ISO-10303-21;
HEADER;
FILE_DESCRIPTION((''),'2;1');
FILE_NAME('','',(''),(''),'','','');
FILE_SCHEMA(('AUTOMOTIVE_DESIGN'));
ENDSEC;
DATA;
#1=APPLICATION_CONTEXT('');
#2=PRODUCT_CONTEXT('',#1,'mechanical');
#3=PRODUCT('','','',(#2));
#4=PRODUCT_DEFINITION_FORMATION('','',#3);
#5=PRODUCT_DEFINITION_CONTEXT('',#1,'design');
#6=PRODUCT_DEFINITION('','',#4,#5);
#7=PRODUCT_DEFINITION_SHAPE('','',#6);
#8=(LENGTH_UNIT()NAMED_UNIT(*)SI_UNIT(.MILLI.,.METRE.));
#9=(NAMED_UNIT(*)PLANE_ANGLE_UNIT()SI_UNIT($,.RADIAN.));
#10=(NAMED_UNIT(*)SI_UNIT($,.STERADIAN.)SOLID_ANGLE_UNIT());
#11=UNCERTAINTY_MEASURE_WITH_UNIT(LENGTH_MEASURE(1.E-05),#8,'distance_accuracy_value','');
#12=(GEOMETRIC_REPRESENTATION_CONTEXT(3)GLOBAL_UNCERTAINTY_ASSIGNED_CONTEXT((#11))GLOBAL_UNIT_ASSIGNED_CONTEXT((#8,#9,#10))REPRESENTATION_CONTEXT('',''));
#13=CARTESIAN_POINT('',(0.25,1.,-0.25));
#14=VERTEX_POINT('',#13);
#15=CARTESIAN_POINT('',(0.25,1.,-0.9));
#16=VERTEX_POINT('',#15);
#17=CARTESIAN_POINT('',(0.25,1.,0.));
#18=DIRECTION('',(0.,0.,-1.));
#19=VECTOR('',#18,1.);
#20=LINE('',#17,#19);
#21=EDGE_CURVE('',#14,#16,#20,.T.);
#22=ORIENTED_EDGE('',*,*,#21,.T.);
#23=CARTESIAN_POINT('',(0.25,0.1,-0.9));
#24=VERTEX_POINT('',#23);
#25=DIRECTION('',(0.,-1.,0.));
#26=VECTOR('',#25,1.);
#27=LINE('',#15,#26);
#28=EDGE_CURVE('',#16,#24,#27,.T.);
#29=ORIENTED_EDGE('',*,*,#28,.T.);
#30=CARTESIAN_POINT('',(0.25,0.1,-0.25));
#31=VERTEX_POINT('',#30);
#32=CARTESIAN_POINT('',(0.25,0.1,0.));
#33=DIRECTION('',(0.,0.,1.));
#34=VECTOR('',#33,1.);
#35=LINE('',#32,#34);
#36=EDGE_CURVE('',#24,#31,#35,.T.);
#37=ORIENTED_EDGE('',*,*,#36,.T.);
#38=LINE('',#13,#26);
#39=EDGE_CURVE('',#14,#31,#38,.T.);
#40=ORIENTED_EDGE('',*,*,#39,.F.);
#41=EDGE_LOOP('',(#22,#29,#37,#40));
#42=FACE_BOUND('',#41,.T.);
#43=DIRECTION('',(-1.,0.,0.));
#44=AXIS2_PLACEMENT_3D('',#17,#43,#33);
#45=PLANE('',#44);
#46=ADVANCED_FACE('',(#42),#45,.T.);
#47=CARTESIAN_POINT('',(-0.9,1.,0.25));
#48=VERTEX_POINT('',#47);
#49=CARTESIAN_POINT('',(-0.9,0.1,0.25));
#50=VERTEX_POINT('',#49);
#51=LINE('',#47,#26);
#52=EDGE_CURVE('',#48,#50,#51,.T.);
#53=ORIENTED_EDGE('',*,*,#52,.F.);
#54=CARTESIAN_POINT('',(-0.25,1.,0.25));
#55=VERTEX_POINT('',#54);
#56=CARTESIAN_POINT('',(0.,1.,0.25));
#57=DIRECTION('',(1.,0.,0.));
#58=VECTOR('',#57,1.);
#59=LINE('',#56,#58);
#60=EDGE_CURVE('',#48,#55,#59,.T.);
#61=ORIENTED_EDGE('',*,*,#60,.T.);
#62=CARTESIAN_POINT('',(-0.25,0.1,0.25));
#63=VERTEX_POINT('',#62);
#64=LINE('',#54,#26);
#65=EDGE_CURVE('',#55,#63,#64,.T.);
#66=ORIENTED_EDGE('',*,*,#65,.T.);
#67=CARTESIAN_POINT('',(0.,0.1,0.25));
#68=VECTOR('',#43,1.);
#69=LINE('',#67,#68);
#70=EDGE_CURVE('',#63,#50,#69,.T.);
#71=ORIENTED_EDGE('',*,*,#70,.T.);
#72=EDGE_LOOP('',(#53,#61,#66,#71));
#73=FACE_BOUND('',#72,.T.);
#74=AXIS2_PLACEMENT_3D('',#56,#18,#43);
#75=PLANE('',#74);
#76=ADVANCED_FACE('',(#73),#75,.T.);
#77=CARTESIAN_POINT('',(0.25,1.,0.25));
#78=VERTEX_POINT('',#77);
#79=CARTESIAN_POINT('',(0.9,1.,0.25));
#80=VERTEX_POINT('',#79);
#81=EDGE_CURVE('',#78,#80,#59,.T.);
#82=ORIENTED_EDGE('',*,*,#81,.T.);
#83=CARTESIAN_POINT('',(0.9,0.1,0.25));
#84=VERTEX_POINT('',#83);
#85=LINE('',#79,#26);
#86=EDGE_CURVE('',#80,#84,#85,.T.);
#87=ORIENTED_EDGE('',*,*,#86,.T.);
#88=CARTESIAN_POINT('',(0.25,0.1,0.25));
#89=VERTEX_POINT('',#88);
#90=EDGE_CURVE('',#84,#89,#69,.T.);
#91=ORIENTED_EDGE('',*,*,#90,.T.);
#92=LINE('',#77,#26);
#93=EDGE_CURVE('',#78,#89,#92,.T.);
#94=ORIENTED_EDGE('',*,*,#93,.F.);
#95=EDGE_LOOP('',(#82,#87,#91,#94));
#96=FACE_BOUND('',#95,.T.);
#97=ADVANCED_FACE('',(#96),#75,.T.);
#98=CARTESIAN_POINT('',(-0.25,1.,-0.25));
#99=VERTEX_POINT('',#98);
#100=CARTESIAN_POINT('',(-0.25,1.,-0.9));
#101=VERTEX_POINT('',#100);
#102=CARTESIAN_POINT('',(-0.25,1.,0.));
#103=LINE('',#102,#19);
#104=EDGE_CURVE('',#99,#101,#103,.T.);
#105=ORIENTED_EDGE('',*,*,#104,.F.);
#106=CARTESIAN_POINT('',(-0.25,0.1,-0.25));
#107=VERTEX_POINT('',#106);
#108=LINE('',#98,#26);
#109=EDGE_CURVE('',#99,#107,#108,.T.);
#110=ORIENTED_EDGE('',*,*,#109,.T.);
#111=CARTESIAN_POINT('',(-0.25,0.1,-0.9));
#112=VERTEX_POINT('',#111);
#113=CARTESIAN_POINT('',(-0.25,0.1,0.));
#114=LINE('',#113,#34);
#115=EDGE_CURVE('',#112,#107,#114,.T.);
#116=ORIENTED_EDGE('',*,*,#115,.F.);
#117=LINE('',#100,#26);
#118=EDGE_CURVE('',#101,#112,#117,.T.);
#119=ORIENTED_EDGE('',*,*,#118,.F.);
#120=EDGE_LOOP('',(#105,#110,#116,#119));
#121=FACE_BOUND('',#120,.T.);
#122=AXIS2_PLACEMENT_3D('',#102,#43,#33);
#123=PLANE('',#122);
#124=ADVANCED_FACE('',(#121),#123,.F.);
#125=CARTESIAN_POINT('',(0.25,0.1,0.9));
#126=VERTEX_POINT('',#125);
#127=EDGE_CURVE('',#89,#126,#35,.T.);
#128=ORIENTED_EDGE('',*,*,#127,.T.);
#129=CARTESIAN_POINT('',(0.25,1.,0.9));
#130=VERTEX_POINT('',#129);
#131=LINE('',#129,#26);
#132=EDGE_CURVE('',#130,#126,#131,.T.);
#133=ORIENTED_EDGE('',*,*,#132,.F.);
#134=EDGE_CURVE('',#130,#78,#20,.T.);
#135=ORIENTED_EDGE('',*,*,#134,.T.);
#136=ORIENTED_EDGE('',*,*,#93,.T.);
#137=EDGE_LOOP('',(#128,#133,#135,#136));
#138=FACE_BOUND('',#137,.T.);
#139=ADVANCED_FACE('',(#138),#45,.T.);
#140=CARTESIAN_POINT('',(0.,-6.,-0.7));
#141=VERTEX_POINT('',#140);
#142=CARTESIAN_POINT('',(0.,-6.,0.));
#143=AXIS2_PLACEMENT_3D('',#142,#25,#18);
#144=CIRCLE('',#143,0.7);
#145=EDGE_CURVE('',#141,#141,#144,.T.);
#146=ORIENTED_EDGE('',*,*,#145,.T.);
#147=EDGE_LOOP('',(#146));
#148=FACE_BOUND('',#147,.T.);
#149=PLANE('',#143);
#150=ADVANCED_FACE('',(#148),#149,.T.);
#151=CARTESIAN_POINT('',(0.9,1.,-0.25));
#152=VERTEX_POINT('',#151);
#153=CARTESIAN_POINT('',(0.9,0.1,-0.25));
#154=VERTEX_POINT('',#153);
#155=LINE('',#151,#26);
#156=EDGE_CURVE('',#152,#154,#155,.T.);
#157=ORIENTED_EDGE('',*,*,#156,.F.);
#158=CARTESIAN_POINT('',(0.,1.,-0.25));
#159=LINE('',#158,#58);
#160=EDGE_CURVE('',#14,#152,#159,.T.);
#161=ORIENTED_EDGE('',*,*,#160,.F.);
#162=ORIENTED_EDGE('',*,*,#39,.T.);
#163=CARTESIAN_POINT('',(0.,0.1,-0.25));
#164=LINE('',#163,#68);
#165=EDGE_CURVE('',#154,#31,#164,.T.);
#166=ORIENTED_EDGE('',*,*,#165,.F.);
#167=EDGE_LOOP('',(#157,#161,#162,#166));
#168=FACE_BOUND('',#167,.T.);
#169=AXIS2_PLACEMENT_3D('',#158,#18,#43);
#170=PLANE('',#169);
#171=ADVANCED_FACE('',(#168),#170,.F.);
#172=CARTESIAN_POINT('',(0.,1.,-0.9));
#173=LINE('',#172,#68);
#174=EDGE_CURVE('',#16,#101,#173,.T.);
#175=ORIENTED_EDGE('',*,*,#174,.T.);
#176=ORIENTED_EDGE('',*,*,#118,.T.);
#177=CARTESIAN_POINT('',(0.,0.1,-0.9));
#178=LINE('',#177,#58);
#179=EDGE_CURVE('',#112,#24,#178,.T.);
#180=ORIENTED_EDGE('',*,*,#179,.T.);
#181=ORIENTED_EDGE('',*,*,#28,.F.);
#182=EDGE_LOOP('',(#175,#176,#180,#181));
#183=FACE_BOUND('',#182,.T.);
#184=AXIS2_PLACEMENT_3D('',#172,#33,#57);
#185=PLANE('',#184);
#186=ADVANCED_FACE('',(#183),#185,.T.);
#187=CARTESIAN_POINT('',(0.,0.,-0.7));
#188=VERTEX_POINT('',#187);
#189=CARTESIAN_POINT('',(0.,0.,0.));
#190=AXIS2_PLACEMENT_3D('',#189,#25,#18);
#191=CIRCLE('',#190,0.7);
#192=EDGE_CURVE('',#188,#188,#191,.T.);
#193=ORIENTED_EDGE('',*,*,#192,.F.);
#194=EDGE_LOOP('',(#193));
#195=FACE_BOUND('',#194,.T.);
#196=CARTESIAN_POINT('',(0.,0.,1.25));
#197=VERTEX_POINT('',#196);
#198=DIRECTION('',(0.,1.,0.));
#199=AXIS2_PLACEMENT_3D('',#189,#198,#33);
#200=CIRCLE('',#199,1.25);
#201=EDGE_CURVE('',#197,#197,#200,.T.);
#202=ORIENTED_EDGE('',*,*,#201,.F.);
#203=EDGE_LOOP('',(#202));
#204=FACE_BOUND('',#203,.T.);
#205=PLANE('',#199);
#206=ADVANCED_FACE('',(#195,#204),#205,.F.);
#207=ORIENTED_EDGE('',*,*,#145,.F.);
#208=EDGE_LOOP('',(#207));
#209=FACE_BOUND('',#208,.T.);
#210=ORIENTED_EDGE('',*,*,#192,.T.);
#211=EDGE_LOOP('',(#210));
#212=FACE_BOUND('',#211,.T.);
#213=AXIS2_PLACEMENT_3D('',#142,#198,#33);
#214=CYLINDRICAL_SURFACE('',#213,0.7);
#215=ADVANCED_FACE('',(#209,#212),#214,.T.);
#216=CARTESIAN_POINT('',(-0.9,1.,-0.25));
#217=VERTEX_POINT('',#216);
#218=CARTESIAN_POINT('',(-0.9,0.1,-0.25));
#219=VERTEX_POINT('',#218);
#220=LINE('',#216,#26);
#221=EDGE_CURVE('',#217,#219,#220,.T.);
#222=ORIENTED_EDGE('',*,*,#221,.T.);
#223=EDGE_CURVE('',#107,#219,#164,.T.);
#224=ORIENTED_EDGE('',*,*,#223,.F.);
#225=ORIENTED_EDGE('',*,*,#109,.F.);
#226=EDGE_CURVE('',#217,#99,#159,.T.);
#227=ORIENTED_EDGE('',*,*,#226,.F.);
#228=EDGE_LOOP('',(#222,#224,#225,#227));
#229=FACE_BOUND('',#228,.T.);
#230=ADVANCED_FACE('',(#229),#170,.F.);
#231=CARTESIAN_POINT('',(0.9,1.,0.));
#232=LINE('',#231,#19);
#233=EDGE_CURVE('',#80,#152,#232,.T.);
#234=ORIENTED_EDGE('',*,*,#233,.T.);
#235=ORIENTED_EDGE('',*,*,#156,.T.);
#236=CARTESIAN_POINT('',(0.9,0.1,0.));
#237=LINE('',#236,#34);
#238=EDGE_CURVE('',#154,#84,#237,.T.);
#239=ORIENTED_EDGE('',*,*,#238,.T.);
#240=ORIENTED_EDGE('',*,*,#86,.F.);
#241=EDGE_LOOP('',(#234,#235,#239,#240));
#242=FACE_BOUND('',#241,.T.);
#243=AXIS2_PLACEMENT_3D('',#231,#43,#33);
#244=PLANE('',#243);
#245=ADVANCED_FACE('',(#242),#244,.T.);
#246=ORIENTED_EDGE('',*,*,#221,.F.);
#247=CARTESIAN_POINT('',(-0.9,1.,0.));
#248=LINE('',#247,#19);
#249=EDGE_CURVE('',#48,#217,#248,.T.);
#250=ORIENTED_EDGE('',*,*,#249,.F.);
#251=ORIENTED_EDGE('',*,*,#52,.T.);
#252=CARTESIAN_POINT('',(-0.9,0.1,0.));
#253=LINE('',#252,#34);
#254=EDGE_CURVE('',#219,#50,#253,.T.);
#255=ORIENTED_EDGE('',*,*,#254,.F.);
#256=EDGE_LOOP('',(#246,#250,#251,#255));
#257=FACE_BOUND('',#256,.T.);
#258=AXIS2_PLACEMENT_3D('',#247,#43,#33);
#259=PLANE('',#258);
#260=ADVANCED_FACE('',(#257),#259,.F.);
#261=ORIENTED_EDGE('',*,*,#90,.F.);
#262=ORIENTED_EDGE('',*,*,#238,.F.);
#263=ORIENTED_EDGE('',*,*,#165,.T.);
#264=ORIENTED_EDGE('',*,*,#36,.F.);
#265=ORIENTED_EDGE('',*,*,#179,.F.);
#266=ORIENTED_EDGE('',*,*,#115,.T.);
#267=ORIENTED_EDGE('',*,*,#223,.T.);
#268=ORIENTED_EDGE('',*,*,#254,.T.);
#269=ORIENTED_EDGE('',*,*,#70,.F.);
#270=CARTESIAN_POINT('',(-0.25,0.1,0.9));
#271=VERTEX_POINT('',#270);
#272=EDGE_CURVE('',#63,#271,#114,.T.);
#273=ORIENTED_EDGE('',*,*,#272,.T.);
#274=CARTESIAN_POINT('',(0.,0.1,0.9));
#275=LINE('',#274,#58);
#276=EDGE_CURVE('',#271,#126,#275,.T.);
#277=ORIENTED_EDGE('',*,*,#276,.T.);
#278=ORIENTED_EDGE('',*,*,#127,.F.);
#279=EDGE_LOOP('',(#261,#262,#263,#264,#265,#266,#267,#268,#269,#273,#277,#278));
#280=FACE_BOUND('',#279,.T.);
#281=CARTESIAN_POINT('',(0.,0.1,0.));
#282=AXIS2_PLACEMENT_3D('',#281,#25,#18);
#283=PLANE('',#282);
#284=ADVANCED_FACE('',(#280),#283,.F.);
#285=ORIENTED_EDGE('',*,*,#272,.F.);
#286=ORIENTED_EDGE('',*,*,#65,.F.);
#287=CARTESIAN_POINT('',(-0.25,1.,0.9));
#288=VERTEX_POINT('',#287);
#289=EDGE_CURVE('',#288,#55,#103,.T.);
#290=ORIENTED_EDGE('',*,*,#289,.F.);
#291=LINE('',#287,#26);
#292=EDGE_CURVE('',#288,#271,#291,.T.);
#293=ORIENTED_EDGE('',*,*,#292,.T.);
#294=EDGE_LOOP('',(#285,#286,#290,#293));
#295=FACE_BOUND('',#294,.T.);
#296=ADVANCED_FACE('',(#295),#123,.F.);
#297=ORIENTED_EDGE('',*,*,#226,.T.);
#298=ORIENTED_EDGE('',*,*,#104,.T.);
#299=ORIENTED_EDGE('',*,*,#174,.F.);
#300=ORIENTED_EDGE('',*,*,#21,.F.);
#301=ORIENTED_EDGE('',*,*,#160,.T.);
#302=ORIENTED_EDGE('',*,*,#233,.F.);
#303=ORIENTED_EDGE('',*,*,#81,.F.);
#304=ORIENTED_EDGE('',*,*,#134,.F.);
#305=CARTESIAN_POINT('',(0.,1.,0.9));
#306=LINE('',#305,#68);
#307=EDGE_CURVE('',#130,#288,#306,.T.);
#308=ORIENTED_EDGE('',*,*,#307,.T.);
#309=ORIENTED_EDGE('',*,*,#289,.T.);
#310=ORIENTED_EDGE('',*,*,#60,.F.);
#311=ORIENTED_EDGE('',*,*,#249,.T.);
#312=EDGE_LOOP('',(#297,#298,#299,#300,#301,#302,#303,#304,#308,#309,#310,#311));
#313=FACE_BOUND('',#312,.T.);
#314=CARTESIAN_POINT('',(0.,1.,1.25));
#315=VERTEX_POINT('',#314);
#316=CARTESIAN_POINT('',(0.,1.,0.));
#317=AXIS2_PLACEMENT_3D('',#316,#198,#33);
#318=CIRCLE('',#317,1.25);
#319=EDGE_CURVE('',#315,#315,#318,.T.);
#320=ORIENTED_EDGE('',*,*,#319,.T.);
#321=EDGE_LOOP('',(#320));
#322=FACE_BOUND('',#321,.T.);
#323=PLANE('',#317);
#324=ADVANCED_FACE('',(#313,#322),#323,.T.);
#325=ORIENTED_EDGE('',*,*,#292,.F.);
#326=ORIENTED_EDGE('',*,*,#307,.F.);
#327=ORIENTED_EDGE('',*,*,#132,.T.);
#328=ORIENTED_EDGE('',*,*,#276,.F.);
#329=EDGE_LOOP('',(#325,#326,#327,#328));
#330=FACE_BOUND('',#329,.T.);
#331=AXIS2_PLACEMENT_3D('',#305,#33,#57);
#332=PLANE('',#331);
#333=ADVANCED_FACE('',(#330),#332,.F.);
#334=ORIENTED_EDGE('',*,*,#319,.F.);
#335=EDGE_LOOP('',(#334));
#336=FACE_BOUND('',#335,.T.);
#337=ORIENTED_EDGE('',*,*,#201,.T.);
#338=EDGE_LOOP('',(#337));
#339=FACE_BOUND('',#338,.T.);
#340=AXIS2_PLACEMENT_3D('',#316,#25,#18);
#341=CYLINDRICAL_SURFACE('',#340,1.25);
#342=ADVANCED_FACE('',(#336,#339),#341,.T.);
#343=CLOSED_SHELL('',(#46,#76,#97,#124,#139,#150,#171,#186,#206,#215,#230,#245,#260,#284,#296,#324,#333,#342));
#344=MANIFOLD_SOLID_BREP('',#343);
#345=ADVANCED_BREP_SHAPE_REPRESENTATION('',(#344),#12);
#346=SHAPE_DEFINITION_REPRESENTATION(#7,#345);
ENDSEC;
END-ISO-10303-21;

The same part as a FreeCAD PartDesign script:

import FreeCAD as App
import Part
import Sketcher

V = App.Vector
Q = App.Units.Quantity

doc = App.newDocument("Part")
body = doc.addObject("PartDesign::Body", "Body")

# Sketch on XZ plane
sketch1 = body.newObject("Sketcher::SketchObject", "Sketch")
sketch1.AttachmentSupport = (doc.getObject("XZ_Plane"), [""])
sketch1.MapMode = "FlatFace"
sketch1.addGeometry(Part.Circle(V(0, 0, 0), V(0, 0, 1), 1.2), False)
sketch1.addGeometry(Part.LineSegment(V(-0.2, 0.9, 0), V(-0.2, 0.2, 0)), False)
sketch1.addGeometry(Part.LineSegment(V(-0.2, 0.2, 0), V(-0.9, 0.2, 0)), False)
sketch1.addGeometry(Part.LineSegment(V(-0.9, 0.2, 0), V(-0.9, -0.2, 0)), False)
sketch1.addGeometry(Part.LineSegment(V(-0.9, -0.2, 0), V(-0.2, -0.2, 0)), False)
sketch1.addGeometry(Part.LineSegment(V(-0.2, -0.2, 0), V(-0.2, -0.9, 0)), False)
sketch1.addGeometry(Part.LineSegment(V(-0.2, -0.9, 0), V(0.2, -0.9, 0)), False)
sketch1.addGeometry(Part.LineSegment(V(0.2, -0.9, 0), V(0.2, -0.2, 0)), False)
sketch1.addGeometry(Part.LineSegment(V(0.2, -0.2, 0), V(0.9, -0.2, 0)), False)
sketch1.addGeometry(Part.LineSegment(V(0.9, -0.2, 0), V(0.9, 0.2, 0)), False)
sketch1.addGeometry(Part.LineSegment(V(0.9, 0.2, 0), V(0.2, 0.2, 0)), False)
sketch1.addGeometry(Part.LineSegment(V(0.2, 0.2, 0), V(0.2, 0.9, 0)), False)
sketch1.addGeometry(Part.LineSegment(V(0.2, 0.9, 0), V(-0.2, 0.9, 0)), False)
sketch1.addConstraint(Sketcher.Constraint("Coincident", 1, 2, 2, 1))
sketch1.addConstraint(Sketcher.Constraint("Coincident", 2, 2, 3, 1))
sketch1.addConstraint(Sketcher.Constraint("Coincident", 3, 2, 4, 1))
sketch1.addConstraint(Sketcher.Constraint("Coincident", 4, 2, 5, 1))
sketch1.addConstraint(Sketcher.Constraint("Coincident", 5, 2, 6, 1))
sketch1.addConstraint(Sketcher.Constraint("Coincident", 6, 2, 7, 1))
sketch1.addConstraint(Sketcher.Constraint("Coincident", 7, 2, 8, 1))
sketch1.addConstraint(Sketcher.Constraint("Coincident", 8, 2, 9, 1))
sketch1.addConstraint(Sketcher.Constraint("Coincident", 9, 2, 10, 1))
sketch1.addConstraint(Sketcher.Constraint("Coincident", 10, 2, 11, 1))
sketch1.addConstraint(Sketcher.Constraint("Coincident", 11, 2, 12, 1))
sketch1.addConstraint(Sketcher.Constraint("Coincident", 12, 2, 1, 1))
sketch1.addConstraint(Sketcher.Constraint("Vertical", 1))
sketch1.addConstraint(Sketcher.Constraint("Horizontal", 2))
sketch1.addConstraint(Sketcher.Constraint("Vertical", 3))
sketch1.addConstraint(Sketcher.Constraint("Horizontal", 4))
sketch1.addConstraint(Sketcher.Constraint("Vertical", 5))
sketch1.addConstraint(Sketcher.Constraint("Horizontal", 6))
sketch1.addConstraint(Sketcher.Constraint("Vertical", 7))
sketch1.addConstraint(Sketcher.Constraint("Horizontal", 8))
sketch1.addConstraint(Sketcher.Constraint("Vertical", 9))
sketch1.addConstraint(Sketcher.Constraint("Horizontal", 10))
sketch1.addConstraint(Sketcher.Constraint("Vertical", 11))
sketch1.addConstraint(Sketcher.Constraint("Horizontal", 12))
sketch1.addConstraint(Sketcher.Constraint("Coincident", 0, 3, -1, 1))
sketch1.addConstraint(Sketcher.Constraint("Symmetric", 1, 2, 7, 2, -1, 1))
sketch1.addConstraint(Sketcher.Constraint("Symmetric", 3, 2, 9, 2, -1, 1))
sketch1.addConstraint(Sketcher.Constraint("Symmetric", 5, 2, 11, 2, -1, 1))
sketch1.addConstraint(Sketcher.Constraint("Symmetric", 4, 2, 7, 2, -2))
sketch1.addConstraint(Sketcher.Constraint("Equal", 10, 1))
sketch1.addConstraint(Sketcher.Constraint("Equal", 12, 3))
sketch1.addConstraint(Sketcher.Constraint("Diameter", 0, Q("2.5 mm")))
sketch1.addConstraint(Sketcher.Constraint("DistanceX", 6, 1, 6, 2, Q("0.5 mm")))
sketch1.addConstraint(Sketcher.Constraint("DistanceX", 2, 2, 2, 1, Q("0.65 mm")))
pad1 = body.newObject("PartDesign::Pad", "Pad")
pad1.Profile = sketch1
pad1.Length = 1
pad1.Reversed = True

# Sketch on XZ plane
sketch2 = body.newObject("Sketcher::SketchObject", "Sketch001")
sketch2.AttachmentSupport = (doc.getObject("XZ_Plane"), [""])
sketch2.MapMode = "FlatFace"
sketch2.addGeometry(Part.Circle(V(0, 0, 0), V(0, 0, 1), 1.2), False)
sketch2.addConstraint(Sketcher.Constraint("Coincident", 0, 3, -1, 1))
sketch2.addConstraint(Sketcher.Constraint("Diameter", 0, Q("2.5 mm")))
pad2 = body.newObject("PartDesign::Pad", "Pad001")
pad2.Profile = sketch2
pad2.Length = 0.1
pad2.Reversed = True

# Sketch on XZ plane
sketch3 = body.newObject("Sketcher::SketchObject", "Sketch002")
sketch3.AttachmentSupport = (doc.getObject("XZ_Plane"), [""])
sketch3.MapMode = "FlatFace"
sketch3.addGeometry(Part.Circle(V(0, 0, 0), V(0, 0, 1), 0.7), False)
sketch3.addConstraint(Sketcher.Constraint("Coincident", 0, 3, -1, 1))
sketch3.addConstraint(Sketcher.Constraint("Diameter", 0, Q("1.4 mm")))
pad3 = body.newObject("PartDesign::Pad", "Pad002")
pad3.Profile = sketch3
pad3.Length = 6

doc.recompute()
